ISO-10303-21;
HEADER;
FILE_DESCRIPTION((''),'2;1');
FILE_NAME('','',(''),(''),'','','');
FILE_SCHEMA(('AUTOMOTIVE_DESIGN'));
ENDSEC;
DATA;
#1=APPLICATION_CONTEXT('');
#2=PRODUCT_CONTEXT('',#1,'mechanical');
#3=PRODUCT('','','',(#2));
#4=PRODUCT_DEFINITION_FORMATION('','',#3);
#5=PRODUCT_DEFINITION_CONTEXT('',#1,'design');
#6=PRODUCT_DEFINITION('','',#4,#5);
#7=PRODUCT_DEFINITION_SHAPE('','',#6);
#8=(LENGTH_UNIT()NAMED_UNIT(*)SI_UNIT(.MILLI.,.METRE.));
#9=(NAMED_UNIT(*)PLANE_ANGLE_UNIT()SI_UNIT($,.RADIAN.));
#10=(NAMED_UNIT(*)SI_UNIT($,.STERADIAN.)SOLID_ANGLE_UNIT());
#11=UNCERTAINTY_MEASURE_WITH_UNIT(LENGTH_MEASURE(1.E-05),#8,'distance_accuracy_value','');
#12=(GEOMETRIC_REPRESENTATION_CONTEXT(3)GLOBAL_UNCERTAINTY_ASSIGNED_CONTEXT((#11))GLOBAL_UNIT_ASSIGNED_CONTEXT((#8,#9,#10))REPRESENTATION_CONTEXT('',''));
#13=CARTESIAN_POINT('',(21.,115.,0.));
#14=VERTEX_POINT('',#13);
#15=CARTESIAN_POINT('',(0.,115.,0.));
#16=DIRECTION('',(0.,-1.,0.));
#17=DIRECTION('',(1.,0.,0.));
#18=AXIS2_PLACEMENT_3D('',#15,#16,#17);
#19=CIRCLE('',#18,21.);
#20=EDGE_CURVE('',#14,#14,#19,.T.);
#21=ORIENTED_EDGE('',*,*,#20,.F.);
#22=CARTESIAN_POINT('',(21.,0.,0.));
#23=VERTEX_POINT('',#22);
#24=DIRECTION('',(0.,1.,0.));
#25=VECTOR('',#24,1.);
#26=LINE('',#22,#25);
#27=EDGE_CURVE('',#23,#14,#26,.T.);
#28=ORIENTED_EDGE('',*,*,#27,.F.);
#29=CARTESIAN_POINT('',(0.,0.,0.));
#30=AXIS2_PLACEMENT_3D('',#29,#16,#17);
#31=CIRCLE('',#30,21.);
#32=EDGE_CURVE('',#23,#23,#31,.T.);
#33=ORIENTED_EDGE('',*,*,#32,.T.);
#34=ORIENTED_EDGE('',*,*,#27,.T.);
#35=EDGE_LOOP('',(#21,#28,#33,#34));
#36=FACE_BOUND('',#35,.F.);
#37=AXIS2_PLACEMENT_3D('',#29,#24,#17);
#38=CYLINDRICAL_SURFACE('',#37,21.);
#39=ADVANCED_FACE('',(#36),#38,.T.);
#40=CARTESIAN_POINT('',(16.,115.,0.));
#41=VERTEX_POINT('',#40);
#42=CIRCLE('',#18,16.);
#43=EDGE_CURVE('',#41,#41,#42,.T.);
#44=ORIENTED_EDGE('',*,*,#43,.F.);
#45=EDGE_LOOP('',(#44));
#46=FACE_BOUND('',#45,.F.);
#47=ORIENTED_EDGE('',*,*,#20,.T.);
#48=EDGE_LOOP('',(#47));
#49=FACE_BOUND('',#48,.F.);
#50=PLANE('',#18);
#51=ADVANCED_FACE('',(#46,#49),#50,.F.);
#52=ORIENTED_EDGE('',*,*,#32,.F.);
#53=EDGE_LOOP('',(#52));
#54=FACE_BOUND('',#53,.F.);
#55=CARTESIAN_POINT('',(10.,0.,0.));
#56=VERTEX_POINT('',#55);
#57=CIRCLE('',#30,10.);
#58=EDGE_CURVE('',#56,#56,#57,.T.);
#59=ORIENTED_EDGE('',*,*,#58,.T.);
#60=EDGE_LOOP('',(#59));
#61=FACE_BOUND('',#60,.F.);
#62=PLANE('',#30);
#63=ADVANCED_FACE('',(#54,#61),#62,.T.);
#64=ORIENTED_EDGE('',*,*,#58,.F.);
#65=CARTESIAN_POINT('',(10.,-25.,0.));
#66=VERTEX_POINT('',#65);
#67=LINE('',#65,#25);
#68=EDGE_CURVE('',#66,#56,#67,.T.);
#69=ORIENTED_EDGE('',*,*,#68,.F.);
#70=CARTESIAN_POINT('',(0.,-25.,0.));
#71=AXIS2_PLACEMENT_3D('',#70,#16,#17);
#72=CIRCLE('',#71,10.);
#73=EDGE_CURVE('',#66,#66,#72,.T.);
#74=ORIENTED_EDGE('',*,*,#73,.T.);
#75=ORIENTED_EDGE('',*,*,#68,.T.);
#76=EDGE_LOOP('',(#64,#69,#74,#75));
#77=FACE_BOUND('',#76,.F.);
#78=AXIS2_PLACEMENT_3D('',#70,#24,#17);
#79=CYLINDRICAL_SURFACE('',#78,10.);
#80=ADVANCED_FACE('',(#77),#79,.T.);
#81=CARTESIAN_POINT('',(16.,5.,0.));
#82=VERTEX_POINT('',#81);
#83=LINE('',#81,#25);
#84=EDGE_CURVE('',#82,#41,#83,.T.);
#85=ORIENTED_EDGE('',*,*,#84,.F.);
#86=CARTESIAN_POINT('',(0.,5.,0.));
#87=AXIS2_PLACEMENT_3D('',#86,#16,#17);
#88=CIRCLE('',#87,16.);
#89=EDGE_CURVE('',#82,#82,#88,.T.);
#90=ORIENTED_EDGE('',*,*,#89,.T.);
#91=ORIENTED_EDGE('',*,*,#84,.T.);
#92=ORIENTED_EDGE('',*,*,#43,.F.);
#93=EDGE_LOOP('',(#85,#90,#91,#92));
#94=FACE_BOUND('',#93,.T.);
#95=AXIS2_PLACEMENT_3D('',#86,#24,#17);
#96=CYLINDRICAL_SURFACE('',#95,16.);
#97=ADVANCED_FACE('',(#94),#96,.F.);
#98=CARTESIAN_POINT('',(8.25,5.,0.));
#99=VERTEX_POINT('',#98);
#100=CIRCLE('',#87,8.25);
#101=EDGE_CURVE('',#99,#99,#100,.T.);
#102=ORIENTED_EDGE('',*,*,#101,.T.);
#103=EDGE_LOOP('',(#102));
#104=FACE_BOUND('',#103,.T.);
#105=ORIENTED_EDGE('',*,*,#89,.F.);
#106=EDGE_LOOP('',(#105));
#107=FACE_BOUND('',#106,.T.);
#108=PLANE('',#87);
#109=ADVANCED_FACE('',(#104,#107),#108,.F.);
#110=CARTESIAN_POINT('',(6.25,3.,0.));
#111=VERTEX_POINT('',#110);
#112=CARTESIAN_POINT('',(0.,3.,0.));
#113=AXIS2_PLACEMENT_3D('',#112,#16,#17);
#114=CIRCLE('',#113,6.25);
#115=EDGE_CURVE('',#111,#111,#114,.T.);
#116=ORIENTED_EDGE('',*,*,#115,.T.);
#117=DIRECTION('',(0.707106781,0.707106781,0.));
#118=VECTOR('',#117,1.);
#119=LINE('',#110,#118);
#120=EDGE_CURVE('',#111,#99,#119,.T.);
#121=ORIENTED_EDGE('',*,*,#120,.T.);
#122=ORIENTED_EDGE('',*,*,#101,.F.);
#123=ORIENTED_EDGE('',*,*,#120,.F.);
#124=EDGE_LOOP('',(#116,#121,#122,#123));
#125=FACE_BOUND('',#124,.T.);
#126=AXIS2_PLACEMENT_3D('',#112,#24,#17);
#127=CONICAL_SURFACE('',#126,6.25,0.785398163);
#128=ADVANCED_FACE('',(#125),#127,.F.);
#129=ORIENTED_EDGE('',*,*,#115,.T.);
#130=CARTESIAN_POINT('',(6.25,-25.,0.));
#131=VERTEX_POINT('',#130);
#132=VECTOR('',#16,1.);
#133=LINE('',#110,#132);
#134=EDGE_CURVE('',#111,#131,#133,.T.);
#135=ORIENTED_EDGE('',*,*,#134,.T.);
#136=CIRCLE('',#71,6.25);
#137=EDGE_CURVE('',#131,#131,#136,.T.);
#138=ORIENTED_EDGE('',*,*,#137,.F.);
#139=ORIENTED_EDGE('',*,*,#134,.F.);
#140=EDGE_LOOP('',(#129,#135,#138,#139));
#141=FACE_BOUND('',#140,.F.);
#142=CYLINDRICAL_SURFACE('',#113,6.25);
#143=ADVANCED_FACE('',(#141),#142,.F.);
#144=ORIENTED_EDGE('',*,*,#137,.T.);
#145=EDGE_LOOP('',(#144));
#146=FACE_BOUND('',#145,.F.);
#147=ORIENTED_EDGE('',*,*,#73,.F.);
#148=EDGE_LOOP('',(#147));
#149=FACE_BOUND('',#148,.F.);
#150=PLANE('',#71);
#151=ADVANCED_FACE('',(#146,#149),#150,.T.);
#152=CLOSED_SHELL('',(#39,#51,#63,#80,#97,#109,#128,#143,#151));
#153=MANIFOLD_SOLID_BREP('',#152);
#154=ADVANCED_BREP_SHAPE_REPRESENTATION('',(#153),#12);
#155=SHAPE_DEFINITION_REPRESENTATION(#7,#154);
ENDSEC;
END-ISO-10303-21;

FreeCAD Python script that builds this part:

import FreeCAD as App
import Part
import Sketcher
Q = App.Units.Quantity


def add_polygon(sketch, points):
    """Adds a closed chain of lines whose ends are joined by coincident constraints."""
    first, n = sketch.GeometryCount, len(points)
    for a, b in zip(points, points[1:] + points[:1]):
        sketch.addGeometry(Part.LineSegment(App.Vector(*a, 0), App.Vector(*b, 0)), False)
    for i in range(n):
        sketch.addConstraint(Sketcher.Constraint("Coincident", first + i, 2, first + (i + 1) % n, 1))

doc = App.newDocument("Part")
body = doc.addObject("PartDesign::Body", "Body")

sketch1 = doc.addObject("Sketcher::SketchObject", "Sketch")
body.addObject(sketch1)
sketch1.AttachmentSupport = (doc.XY_Plane, [""])
sketch1.MapMode = "FlatFace"
add_polygon(sketch1, [(8.2, 5), (6.2, 3), (6.2, -25), (10, -25), (10, 0), (21, 0), (21, 115), (16, 115), (16, 5)])
sketch1.addConstraint(Sketcher.Constraint("Vertical", 1))
sketch1.addConstraint(Sketcher.Constraint("Horizontal", 2))
sketch1.addConstraint(Sketcher.Constraint("Vertical", 3))
sketch1.addConstraint(Sketcher.Constraint("Horizontal", 4))
sketch1.addConstraint(Sketcher.Constraint("Vertical", 5))
sketch1.addConstraint(Sketcher.Constraint("Horizontal", 6))
sketch1.addConstraint(Sketcher.Constraint("Vertical", 7))
sketch1.addConstraint(Sketcher.Constraint("Horizontal", 8))
sketch1.addConstraint(Sketcher.Constraint("PointOnObject", 3, 2, -1))
sketch1.addConstraint(Sketcher.Constraint("DistanceX", 6, 2, 6, 1, Q("5 mm")))
sketch1.addConstraint(Sketcher.Constraint("DistanceY", 3, 1, 3, 2, Q("25 mm")))
sketch1.addConstraint(Sketcher.Constraint("DistanceY", 5, 1, 5, 2, Q("115 mm")))
sketch1.addConstraint(Sketcher.Constraint("DistanceY", -1, 1, 7, 2, Q("5 mm")))
sketch1.addConstraint(Sketcher.Constraint("DistanceY", 0, 2, 7, 2, Q("2 mm")))
sketch1.addConstraint(Sketcher.Constraint("DistanceX", 0, 2, 8, 2, Q("2 mm")))
sketch1.addConstraint(Sketcher.Constraint("DistanceX", 4, 1, 4, 2, Q("11 mm")))
sketch1.addConstraint(Sketcher.Constraint("DistanceX", -1, 1, 2, 2, Q("10 mm")))
sketch1.addConstraint(Sketcher.Constraint("DistanceX", 2, 1, 2, 2, Q("3.75 mm")))
revolution = doc.addObject("PartDesign::Revolution", "Revolution")
body.addObject(revolution)
revolution.Profile = sketch1
revolution.ReferenceAxis = (sketch1, ["V_Axis"])
revolution.Angle = 360

doc.recompute()
